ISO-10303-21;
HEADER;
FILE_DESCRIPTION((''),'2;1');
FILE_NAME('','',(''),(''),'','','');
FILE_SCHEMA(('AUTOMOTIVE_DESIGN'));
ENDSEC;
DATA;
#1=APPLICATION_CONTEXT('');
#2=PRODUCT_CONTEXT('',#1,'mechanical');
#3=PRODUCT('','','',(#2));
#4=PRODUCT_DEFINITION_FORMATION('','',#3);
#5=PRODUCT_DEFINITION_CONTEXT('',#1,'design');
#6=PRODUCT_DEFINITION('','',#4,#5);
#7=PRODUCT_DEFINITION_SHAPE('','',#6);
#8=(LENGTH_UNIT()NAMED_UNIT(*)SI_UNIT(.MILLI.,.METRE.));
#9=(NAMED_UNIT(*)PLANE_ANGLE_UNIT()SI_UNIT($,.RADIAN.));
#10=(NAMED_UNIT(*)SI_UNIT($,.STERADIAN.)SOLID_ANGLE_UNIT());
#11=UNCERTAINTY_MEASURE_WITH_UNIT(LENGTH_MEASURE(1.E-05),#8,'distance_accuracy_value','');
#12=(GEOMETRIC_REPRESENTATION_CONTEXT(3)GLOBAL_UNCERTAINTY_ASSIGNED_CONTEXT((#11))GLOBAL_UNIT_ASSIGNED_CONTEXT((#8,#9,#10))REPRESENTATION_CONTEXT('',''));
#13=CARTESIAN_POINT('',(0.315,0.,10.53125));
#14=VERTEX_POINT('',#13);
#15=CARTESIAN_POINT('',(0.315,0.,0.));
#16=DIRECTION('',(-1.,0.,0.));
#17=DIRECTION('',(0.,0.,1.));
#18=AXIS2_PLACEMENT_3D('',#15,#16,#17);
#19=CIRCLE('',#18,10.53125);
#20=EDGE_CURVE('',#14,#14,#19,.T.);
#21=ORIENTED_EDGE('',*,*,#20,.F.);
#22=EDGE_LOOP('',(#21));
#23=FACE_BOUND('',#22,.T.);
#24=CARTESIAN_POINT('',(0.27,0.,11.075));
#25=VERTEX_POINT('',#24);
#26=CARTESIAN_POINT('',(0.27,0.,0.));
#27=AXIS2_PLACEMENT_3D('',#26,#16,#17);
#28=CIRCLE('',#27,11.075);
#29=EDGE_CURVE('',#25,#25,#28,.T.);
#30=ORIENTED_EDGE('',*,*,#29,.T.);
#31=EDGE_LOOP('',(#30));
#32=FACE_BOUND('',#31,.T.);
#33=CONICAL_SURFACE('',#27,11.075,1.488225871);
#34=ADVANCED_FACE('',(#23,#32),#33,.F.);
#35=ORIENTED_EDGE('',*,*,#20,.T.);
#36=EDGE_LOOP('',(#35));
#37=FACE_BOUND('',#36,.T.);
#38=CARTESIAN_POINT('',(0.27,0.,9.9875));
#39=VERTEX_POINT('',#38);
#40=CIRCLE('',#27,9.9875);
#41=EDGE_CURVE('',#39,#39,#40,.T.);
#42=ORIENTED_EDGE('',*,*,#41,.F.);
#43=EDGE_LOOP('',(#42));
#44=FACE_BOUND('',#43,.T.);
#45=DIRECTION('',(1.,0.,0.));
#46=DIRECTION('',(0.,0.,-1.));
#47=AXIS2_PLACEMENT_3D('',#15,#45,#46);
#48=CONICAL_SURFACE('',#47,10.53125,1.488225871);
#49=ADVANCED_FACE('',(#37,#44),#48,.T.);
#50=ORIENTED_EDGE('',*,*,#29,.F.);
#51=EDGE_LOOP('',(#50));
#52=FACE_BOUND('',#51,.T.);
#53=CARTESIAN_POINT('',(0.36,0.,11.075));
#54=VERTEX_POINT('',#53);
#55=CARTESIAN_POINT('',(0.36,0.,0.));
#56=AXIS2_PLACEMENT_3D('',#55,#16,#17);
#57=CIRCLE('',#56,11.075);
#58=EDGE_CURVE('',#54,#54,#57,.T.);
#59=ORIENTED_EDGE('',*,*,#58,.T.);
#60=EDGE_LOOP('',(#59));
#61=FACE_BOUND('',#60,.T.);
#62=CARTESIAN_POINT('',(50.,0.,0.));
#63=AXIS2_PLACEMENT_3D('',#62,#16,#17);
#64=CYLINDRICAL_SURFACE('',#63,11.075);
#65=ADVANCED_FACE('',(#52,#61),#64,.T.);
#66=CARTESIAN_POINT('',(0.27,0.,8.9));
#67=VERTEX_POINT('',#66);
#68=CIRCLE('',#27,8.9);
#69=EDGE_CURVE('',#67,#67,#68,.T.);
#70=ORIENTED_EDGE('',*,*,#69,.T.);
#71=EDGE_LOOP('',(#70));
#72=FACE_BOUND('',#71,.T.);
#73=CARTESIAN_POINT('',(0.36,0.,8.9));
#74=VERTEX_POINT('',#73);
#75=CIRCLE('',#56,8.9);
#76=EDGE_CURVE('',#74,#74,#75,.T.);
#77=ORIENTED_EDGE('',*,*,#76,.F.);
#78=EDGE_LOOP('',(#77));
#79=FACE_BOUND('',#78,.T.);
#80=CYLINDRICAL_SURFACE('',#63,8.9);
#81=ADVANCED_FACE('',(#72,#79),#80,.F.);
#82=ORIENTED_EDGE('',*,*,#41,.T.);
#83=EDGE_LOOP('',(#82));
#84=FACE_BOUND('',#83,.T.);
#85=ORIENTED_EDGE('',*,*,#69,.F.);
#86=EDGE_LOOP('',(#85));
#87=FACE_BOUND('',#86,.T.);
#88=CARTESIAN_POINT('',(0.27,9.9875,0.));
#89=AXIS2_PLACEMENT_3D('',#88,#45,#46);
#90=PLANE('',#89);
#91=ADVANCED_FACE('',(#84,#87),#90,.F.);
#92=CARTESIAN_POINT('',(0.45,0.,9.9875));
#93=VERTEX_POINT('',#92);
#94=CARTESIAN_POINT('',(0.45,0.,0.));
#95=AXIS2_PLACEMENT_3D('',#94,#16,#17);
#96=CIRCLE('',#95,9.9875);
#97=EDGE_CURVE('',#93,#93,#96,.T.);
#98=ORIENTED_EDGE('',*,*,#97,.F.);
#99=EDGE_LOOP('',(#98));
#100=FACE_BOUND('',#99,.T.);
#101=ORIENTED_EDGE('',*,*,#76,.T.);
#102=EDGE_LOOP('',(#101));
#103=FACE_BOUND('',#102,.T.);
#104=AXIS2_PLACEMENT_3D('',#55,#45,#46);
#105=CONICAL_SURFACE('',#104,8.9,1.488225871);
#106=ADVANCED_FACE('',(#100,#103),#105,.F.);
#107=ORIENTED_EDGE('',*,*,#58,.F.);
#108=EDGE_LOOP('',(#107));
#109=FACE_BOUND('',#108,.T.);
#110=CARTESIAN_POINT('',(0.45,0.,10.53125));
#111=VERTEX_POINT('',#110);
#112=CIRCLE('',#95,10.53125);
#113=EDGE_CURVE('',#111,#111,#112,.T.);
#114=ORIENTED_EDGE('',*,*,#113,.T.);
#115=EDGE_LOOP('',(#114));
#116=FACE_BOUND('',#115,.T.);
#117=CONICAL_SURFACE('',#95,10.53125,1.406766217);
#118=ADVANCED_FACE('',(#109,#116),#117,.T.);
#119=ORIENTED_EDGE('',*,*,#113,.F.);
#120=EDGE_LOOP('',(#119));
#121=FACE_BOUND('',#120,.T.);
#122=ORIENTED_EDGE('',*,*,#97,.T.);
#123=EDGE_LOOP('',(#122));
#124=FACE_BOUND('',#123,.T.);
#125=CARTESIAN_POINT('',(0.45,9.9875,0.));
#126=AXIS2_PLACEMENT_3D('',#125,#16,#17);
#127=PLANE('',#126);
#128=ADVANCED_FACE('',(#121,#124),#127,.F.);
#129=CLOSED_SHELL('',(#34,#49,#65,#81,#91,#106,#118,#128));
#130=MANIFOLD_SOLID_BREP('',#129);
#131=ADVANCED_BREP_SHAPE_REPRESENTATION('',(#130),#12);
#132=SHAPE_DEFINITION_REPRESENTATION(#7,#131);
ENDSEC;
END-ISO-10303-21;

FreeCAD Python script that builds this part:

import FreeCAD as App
import Part
import Sketcher
from FreeCAD import Vector
Q = App.Units.Quantity


def add_polygon(sketch, points):
    """Adds a closed chain of lines whose ends are joined by coincident constraints."""
    first, n = sketch.GeometryCount, len(points)
    for a, b in zip(points, points[1:] + points[:1]):
        sketch.addGeometry(Part.LineSegment(App.Vector(*a, 0), App.Vector(*b, 0)), False)
    for i in range(n):
        sketch.addConstraint(Sketcher.Constraint("Coincident", first + i, 2, first + (i + 1) % n, 1))

doc = App.newDocument("Part")
body = doc.addObject("PartDesign::Body", "Body")

# Sketch on XY plane
sketch1 = body.newObject("Sketcher::SketchObject", "Sketch")
sketch1.AttachmentSupport = (doc.getObject("XY_Plane"), [""])
sketch1.MapMode = "FlatFace"
add_polygon(sketch1, [(0.27, 11.07), (0.32, 10.53), (0.27, 9.99), (0.27, 8.9), (0.36, 8.9), (0.45, 9.99), (0.45, 10.53), (0.36, 11.07)])  # lines 0-7
sketch1.addConstraint([
    Sketcher.Constraint("Vertical", 2),
    Sketcher.Constraint("Horizontal", 3),
    Sketcher.Constraint("Vertical", 5),
    Sketcher.Constraint("Horizontal", 7),
    Sketcher.Constraint("Parallel", 1, 4),
    Sketcher.Constraint("Horizontal", 1, 2, 4, 2),
    Sketcher.Constraint("Horizontal", 0, 2, 5, 2),
    Sketcher.Constraint("Vertical", 3, 2, 6, 2),
    Sketcher.Constraint("Vertical", 2, 2, 7, 2),
    Sketcher.Constraint("Equal", 0, 1),
    Sketcher.Constraint("DistanceX", 3, 1, 3, 2, Q("0.09 mm")),
    Sketcher.Constraint("DistanceY", -1, 1, 2, 2, Q("8.9 mm")),
    Sketcher.Constraint("DistanceX", -1, 1, 1, 2, Q("0.27 mm")),
    Sketcher.Constraint("DistanceX", -1, 1, 4, 2, Q("0.45 mm")),
    Sketcher.Constraint("DistanceY", 2, 2, 2, 1, Q("1.0875 mm")),
    Sketcher.Constraint("DistanceX", -1, 1, 0, 2, Q("0.315 mm")),
])
revolution = body.newObject("PartDesign::Revolution", "Revolution")
revolution.Profile = sketch1
revolution.ReferenceAxis = (sketch1, ["H_Axis"])
revolution.Angle = 360

doc.recompute()
